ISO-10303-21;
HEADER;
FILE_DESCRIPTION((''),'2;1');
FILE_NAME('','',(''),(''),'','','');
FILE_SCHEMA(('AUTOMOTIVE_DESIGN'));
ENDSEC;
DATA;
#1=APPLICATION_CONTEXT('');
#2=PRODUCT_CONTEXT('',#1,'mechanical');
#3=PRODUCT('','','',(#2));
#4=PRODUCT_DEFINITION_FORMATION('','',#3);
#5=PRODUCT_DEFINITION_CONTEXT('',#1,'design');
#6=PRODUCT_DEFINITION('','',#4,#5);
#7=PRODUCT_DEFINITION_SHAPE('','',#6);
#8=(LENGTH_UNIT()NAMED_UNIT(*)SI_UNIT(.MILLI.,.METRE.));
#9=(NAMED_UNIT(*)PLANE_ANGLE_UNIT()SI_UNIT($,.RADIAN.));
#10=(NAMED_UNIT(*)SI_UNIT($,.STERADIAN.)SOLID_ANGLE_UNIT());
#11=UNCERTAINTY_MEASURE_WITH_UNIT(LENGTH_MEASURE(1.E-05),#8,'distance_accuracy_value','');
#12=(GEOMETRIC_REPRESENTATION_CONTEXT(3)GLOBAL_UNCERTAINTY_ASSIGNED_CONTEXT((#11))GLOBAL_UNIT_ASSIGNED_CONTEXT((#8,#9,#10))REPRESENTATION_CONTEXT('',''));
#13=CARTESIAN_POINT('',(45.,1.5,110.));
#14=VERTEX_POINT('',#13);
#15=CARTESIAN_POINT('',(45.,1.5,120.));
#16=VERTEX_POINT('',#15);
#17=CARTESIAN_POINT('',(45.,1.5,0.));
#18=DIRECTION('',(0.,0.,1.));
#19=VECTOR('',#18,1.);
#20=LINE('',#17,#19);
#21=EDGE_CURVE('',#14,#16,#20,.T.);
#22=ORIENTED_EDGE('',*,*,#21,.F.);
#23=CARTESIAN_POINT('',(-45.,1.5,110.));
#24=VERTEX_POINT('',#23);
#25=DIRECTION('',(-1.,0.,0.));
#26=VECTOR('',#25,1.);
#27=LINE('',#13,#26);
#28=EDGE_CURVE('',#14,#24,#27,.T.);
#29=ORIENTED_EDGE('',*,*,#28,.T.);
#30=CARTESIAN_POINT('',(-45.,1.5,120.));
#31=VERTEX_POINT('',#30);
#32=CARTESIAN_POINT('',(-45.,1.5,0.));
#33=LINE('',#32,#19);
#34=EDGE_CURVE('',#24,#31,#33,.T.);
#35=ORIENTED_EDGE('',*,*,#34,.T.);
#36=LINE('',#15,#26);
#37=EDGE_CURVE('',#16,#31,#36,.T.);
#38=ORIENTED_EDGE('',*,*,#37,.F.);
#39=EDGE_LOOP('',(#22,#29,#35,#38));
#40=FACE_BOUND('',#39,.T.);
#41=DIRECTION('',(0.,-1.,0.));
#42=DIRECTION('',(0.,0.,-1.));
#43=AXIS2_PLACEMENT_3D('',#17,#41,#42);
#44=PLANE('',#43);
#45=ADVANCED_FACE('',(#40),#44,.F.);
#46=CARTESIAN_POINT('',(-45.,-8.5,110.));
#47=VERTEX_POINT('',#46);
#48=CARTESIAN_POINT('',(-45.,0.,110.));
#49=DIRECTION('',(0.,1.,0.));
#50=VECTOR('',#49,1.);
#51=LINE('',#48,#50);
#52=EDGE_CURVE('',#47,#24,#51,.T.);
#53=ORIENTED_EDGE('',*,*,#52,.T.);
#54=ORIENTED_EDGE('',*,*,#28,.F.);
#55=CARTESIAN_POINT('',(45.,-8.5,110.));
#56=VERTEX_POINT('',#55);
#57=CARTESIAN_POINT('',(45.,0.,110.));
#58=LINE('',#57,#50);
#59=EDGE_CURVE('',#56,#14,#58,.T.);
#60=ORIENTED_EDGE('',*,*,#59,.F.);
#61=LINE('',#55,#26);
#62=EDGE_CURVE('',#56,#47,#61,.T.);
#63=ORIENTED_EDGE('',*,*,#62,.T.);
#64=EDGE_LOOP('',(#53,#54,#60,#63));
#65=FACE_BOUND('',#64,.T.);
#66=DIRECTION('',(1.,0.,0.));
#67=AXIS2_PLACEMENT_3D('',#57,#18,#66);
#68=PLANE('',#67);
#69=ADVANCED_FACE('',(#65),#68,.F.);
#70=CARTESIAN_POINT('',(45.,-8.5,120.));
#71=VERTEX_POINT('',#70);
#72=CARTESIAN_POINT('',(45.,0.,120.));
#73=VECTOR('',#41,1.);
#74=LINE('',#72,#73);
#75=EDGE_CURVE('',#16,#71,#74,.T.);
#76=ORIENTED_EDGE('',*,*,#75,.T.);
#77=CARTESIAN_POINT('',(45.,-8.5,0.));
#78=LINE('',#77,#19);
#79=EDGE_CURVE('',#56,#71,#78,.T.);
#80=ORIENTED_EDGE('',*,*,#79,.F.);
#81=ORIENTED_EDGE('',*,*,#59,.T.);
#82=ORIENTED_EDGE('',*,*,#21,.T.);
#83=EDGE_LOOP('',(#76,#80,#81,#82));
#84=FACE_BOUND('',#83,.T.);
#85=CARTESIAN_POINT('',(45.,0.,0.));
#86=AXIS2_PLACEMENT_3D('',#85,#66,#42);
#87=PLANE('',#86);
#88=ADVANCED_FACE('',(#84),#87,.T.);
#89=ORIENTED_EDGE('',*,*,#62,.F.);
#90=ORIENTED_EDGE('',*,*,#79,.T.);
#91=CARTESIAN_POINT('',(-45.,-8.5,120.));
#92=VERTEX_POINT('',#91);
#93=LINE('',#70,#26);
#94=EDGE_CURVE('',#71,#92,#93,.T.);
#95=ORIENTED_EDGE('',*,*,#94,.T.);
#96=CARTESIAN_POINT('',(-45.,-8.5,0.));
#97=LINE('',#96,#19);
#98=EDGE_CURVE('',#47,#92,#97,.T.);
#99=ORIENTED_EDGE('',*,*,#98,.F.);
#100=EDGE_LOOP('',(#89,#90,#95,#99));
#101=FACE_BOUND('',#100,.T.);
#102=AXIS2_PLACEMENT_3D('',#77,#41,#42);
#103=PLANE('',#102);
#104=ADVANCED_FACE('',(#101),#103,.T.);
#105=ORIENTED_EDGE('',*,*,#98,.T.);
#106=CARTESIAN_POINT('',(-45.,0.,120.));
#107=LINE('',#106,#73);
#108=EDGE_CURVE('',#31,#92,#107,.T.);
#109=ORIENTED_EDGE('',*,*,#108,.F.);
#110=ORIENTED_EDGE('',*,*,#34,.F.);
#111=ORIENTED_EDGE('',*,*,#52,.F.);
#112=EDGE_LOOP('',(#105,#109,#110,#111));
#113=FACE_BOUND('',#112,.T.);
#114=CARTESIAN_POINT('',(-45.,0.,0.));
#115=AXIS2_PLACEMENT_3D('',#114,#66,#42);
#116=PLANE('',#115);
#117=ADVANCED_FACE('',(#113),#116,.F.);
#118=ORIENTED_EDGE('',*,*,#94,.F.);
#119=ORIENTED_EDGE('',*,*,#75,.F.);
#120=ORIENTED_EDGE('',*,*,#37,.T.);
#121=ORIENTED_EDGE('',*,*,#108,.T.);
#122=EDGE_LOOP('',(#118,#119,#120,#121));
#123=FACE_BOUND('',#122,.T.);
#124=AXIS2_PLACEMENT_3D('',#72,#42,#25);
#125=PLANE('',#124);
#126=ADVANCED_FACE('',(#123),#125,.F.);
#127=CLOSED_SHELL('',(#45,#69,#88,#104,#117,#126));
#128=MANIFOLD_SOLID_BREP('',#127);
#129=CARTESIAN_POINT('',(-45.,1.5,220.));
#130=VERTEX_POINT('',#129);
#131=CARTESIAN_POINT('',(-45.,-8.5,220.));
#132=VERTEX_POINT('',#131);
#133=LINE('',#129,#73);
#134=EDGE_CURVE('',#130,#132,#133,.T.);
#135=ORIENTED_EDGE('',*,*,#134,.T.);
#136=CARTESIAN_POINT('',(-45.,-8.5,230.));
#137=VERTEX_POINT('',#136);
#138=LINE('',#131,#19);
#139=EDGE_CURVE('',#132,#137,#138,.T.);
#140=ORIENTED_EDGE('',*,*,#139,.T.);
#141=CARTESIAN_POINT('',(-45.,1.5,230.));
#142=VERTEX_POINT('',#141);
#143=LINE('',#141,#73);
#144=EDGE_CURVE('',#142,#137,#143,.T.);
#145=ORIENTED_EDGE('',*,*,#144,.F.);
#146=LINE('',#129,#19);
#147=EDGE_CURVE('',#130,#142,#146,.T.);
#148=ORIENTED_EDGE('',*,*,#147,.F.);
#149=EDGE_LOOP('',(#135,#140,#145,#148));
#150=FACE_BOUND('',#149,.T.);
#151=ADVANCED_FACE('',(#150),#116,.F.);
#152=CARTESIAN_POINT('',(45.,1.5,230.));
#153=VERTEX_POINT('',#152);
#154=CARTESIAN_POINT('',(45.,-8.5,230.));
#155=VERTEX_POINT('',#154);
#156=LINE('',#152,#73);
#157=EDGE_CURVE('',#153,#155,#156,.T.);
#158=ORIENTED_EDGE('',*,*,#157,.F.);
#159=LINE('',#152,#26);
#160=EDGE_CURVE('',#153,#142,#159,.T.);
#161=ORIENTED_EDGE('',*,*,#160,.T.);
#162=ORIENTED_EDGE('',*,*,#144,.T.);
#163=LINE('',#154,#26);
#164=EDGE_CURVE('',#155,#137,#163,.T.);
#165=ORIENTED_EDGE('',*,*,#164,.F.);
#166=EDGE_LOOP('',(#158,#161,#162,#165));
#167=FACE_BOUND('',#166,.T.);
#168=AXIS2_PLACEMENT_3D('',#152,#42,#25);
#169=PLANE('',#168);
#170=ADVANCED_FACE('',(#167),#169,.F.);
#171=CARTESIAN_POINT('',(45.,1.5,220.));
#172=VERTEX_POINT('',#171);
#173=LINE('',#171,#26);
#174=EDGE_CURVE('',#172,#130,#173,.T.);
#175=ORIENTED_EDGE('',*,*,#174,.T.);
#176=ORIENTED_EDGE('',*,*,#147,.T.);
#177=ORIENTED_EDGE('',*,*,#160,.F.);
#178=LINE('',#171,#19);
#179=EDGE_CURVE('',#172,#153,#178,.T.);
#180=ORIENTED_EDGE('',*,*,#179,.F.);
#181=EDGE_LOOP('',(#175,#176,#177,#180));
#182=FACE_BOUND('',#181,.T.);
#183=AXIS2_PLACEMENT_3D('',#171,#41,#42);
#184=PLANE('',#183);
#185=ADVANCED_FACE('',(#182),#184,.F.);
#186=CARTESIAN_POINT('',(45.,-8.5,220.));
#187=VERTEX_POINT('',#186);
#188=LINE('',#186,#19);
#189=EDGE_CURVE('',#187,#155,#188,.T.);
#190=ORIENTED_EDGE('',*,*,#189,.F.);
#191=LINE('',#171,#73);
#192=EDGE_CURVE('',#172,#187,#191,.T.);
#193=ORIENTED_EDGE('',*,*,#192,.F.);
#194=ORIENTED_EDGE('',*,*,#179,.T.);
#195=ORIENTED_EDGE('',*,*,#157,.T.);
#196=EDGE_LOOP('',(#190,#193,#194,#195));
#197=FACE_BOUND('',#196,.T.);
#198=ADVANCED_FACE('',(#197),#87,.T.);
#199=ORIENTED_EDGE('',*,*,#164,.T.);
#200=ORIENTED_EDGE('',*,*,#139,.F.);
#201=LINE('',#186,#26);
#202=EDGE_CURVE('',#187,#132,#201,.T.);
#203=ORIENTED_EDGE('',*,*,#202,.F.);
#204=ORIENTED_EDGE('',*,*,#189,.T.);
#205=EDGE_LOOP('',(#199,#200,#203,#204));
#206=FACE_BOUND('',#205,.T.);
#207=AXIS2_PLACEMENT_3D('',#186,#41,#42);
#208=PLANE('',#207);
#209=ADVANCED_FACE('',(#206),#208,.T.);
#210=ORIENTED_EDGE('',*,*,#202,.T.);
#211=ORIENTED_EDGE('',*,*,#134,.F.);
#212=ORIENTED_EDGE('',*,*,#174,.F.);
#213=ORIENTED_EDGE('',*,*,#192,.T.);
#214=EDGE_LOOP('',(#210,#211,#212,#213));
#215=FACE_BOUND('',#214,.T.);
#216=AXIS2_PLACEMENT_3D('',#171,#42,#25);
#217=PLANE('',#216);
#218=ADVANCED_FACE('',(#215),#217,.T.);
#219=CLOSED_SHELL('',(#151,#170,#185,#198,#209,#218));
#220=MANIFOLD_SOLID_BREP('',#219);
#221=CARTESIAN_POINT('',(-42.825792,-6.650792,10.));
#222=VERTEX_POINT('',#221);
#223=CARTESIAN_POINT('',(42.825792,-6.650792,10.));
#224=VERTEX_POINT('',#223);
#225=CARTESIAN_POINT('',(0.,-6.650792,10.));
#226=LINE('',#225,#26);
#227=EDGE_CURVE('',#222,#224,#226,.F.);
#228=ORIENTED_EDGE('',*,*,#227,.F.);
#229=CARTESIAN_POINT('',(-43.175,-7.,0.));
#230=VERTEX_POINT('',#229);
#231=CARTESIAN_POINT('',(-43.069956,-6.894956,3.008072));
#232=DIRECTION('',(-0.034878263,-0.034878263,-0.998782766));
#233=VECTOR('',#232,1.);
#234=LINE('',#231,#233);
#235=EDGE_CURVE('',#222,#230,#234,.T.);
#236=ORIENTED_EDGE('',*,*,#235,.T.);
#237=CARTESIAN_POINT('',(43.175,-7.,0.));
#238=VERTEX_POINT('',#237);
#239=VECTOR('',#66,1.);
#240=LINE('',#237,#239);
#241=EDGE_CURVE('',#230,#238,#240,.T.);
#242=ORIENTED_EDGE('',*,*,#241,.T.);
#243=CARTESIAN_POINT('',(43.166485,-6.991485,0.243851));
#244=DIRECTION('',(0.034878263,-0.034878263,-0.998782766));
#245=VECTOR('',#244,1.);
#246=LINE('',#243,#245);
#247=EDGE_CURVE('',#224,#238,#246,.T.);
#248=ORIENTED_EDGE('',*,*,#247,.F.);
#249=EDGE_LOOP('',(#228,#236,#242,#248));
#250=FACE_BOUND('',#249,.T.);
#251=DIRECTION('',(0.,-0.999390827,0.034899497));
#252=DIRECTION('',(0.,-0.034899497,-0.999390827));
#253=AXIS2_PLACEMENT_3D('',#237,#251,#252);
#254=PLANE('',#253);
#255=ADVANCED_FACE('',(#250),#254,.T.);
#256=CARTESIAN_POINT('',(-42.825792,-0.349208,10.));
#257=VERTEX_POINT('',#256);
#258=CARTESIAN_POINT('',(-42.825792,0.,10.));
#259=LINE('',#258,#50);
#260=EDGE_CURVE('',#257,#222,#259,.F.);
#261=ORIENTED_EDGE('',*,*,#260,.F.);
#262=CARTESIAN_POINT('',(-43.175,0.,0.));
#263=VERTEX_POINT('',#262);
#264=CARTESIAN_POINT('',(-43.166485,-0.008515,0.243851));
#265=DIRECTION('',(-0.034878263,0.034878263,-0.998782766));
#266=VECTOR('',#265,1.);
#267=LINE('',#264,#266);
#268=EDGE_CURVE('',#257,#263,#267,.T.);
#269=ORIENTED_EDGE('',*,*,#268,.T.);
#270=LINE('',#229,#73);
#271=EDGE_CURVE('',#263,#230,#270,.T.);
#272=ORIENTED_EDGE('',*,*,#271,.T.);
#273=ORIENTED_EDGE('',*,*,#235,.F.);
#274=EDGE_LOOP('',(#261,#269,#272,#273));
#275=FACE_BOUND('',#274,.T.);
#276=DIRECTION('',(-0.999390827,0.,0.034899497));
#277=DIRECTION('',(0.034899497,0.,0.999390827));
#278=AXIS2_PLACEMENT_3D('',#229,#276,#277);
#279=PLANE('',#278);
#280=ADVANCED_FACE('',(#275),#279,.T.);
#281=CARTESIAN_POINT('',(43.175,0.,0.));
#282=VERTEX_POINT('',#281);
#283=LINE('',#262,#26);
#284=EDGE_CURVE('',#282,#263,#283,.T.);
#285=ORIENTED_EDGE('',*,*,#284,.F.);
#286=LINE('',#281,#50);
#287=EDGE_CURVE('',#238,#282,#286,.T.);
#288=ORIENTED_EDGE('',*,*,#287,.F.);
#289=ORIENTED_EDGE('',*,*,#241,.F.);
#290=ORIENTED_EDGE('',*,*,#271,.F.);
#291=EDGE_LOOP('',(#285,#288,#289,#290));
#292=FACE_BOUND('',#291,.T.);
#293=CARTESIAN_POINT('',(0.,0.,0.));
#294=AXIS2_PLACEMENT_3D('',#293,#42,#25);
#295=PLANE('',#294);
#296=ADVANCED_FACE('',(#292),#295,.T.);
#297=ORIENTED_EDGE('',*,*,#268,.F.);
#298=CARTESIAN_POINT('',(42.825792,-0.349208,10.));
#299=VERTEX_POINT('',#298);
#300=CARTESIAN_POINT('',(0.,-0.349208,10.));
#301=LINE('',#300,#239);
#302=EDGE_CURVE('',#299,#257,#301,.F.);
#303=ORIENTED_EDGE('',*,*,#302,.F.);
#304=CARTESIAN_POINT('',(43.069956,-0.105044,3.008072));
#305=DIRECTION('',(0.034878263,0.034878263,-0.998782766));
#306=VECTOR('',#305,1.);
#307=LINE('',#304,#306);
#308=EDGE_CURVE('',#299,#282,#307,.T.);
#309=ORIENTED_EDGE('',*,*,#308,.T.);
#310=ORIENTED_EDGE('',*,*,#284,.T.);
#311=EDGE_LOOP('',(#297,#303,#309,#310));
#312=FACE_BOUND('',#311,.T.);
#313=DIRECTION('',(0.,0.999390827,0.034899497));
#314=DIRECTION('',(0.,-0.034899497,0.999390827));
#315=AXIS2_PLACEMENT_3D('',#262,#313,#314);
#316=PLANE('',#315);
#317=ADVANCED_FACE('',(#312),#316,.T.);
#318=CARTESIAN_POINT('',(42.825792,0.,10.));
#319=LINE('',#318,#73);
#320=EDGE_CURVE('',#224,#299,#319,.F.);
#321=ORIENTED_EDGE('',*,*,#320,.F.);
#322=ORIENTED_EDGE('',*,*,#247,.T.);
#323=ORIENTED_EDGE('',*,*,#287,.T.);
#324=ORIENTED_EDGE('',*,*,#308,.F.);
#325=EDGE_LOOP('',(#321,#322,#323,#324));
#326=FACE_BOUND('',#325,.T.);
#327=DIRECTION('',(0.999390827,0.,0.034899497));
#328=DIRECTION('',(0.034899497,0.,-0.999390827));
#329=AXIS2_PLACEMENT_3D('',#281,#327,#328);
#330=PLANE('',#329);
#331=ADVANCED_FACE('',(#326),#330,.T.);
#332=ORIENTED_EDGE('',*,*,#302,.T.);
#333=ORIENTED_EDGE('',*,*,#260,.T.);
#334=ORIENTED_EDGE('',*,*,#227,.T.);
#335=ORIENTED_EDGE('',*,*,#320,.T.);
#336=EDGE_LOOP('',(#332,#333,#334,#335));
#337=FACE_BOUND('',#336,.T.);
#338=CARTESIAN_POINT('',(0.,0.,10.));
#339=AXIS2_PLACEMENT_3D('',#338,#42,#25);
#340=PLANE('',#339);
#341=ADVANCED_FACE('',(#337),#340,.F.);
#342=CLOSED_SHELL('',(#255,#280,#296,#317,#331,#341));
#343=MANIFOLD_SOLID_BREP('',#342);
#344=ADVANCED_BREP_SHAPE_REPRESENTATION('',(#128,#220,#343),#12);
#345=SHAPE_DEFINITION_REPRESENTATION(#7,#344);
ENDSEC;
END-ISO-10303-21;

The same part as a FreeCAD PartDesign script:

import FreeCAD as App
import Part
import Sketcher

V = App.Vector


def add_polygon(sketch, points):
    """Adds a closed chain of lines whose ends are joined by coincident constraints."""
    first, n = sketch.GeometryCount, len(points)
    for a, b in zip(points, points[1:] + points[:1]):
        sketch.addGeometry(Part.LineSegment(App.Vector(*a, 0), App.Vector(*b, 0)), False)
    for i in range(n):
        sketch.addConstraint(Sketcher.Constraint("Coincident", first + i, 2, first + (i + 1) % n, 1))

doc = App.newDocument("Part")
body = doc.addObject("PartDesign::Body", "Body")

# Sketch on XY plane
sketch1 = doc.addObject("Sketcher::SketchObject", "Sketch")
body.addObject(sketch1)
sketch1.AttachmentSupport = (doc.XY_Plane, [""])
sketch1.MapMode = "FlatFace"
add_polygon(sketch1, [(-43.175, 0), (-43.175, -7), (43.175, -7), (43.175, 0)])  # lines 0-3
sketch1.addConstraint(Sketcher.Constraint("Vertical", 0))
sketch1.addConstraint(Sketcher.Constraint("Horizontal", 1))
sketch1.addConstraint(Sketcher.Constraint("Vertical", 2))
sketch1.addConstraint(Sketcher.Constraint("Horizontal", 3))
sketch1.addConstraint(Sketcher.Constraint("Symmetric", 2, 2, 3, 2, -1, 1))
sketch1.addConstraint(Sketcher.Constraint("DistanceY", 0, 2, 0, 1, 7.0))
sketch1.addConstraint(Sketcher.Constraint("DistanceX", 1, 1, 1, 2, 86.35))
pad1 = doc.addObject("PartDesign::Pad", "Pad")
body.addObject(pad1)
pad1.Profile = sketch1
pad1.Length = 10
pad1.TaperAngle = -2
body2 = doc.addObject("PartDesign::Body", "Body001")

# Sketch on YZ plane
sketch2 = doc.addObject("Sketcher::SketchObject", "Sketch001")
body2.addObject(sketch2)
sketch2.AttachmentSupport = (doc.getObject("YZ_Plane001"), [""])
sketch2.MapMode = "FlatFace"
add_polygon(sketch2, [(1.5, 120), (-8.5, 120), (-8.5, 110), (1.5, 110)])  # lines 0-3
sketch2.addConstraint(Sketcher.Constraint("Horizontal", 0))
sketch2.addConstraint(Sketcher.Constraint("Vertical", 1))
sketch2.addConstraint(Sketcher.Constraint("Horizontal", 2))
sketch2.addConstraint(Sketcher.Constraint("Vertical", 3))
sketch2.addConstraint(Sketcher.Constraint("Equal", 2, 1))
sketch2.addConstraint(Sketcher.Constraint("DistanceX", 0, 2, 0, 1, 10.0))
sketch2.addConstraint(Sketcher.Constraint("DistanceY", -1, 1, 0, 2, 120.0))
sketch2.addConstraint(Sketcher.Constraint("DistanceX", 0, 2, -1, 1, 8.5))
pad2 = doc.addObject("PartDesign::Pad", "Pad001")
body2.addObject(pad2)
pad2.Profile = sketch2
pad2.Length = 90
pad2.Midplane = True
body3 = doc.addObject("PartDesign::Body", "Body002")

# Sketch on YZ plane
sketch3 = doc.addObject("Sketcher::SketchObject", "Sketch002")
body3.addObject(sketch3)
sketch3.AttachmentSupport = (doc.getObject("YZ_Plane002"), [""])
sketch3.MapMode = "FlatFace"
add_polygon(sketch3, [(1.5, 230), (-8.5, 230), (-8.5, 220), (1.5, 220)])  # lines 0-3
sketch3.addConstraint(Sketcher.Constraint("Horizontal", 0))
sketch3.addConstraint(Sketcher.Constraint("Vertical", 1))
sketch3.addConstraint(Sketcher.Constraint("Horizontal", 2))
sketch3.addConstraint(Sketcher.Constraint("Vertical", 3))
sketch3.addConstraint(Sketcher.Constraint("Equal", 2, 1))
sketch3.addConstraint(Sketcher.Constraint("DistanceX", 0, 2, 0, 1, 10.0))
sketch3.addConstraint(Sketcher.Constraint("DistanceY", -1, 1, 0, 2, 230.0))
sketch3.addConstraint(Sketcher.Constraint("DistanceX", 0, 2, -1, 1, 8.5))
pad3 = doc.addObject("PartDesign::Pad", "Pad002")
body3.addObject(pad3)
pad3.Profile = sketch3
pad3.Length = 90
pad3.Midplane = True

doc.recompute()
